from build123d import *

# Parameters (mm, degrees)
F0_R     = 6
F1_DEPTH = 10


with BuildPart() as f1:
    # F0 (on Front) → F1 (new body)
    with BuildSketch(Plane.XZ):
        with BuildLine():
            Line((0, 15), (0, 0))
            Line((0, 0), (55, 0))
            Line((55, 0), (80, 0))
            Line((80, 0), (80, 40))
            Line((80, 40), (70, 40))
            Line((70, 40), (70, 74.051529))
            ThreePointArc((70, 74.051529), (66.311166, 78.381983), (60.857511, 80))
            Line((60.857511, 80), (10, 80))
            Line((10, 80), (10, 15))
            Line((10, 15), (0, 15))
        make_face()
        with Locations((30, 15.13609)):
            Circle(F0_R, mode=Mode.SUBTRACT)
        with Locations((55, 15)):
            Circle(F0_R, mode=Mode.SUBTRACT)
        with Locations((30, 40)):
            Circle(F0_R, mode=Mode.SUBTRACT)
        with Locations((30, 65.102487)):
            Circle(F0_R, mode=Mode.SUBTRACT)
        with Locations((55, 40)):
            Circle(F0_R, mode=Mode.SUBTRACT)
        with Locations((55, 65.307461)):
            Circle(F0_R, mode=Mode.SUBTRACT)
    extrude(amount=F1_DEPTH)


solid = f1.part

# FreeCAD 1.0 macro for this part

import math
import FreeCAD as App
import Part
import Sketcher

V = App.Vector
Q = App.Units.Quantity

doc = App.newDocument("Part")
body = doc.addObject("PartDesign::Body", "Body")

# Sketch on XZ plane
sketch1 = body.newObject("Sketcher::SketchObject", "Sketch")
sketch1.AttachmentSupport = (doc.getObject("XZ_Plane"), [""])
sketch1.MapMode = "FlatFace"
sketch1.addGeometry([
    Part.LineSegment(V(0, 15, 0), V(0, 0, 0)),  # 0
    Part.LineSegment(V(0, 0, 0), V(80, 0, 0)),  # 1
    Part.LineSegment(V(80, 0, 0), V(80, 40, 0)),  # 2
    Part.LineSegment(V(80, 40, 0), V(70, 40, 0)),  # 3
    Part.LineSegment(V(70, 40, 0), V(70, 74, 0)),  # 4
    Part.ArcOfCircle(Part.Circle(V(61, 70, 0), V(0, 0, 1), 10), math.radians(24), math.radians(90)),  # 5
    Part.LineSegment(V(61, 80, 0), V(10, 80, 0)),  # 6
    Part.LineSegment(V(10, 80, 0), V(10, 15, 0)),  # 7
    Part.LineSegment(V(10, 15, 0), V(0, 15, 0)),  # 8
    Part.Circle(V(30, 15, 0), V(0, 0, 1), 6),  # 9
    Part.Circle(V(30, 40, 0), V(0, 0, 1), 6),  # 10
    Part.Circle(V(55, 15, 0), V(0, 0, 1), 6),  # 11
    Part.Circle(V(55, 40, 0), V(0, 0, 1), 6),  # 12
    Part.Circle(V(30, 65, 0), V(0, 0, 1), 6),  # 13
    Part.Circle(V(55, 65, 0), V(0, 0, 1), 6),  # 14
], False)
sketch1.addConstraint([
    Sketcher.Constraint("Coincident", 0, 2, 1, 1),
    Sketcher.Constraint("Coincident", 1, 2, 2, 1),
    Sketcher.Constraint("Coincident", 2, 2, 3, 1),
    Sketcher.Constraint("Coincident", 3, 2, 4, 1),
    Sketcher.Constraint("Coincident", 4, 2, 5, 1),
    Sketcher.Constraint("Tangent", 5, 2, 6, 1),
    Sketcher.Constraint("Coincident", 6, 2, 7, 1),
    Sketcher.Constraint("Coincident", 7, 2, 8, 1),
    Sketcher.Constraint("Coincident", 8, 2, 0, 1),
    Sketcher.Constraint("Vertical", 0),
    Sketcher.Constraint("Horizontal", 1),
    Sketcher.Constraint("Vertical", 2),
    Sketcher.Constraint("Horizontal", 3),
    Sketcher.Constraint("Vertical", 4),
    Sketcher.Constraint("Horizontal", 6),
    Sketcher.Constraint("Vertical", 7),
    Sketcher.Constraint("Horizontal", 8),
    Sketcher.Constraint("Coincident", 0, 2, -1, 1),
    Sketcher.Constraint("Equal", 9, 10),
    Sketcher.Constraint("Equal", 10, 11),
    Sketcher.Constraint("Equal", 11, 12),
    Sketcher.Constraint("Equal", 12, 13),
    Sketcher.Constraint("Equal", 13, 14),
    Sketcher.Constraint("Horizontal", 10, 3, 12, 3),
    Sketcher.Constraint("Horizontal", 12, 3, 2, 2),
    Sketcher.Constraint("Horizontal", 11, 3, 7, 2),
    Sketcher.Constraint("Vertical", 9, 3, 10, 3),
    Sketcher.Constraint("Vertical", 11, 3, 12, 3),
    Sketcher.Constraint("Vertical", 10, 3, 13, 3),
    Sketcher.Constraint("Vertical", 12, 3, 14, 3),
    Sketcher.Constraint("Equal", 3, 8),
    Sketcher.Constraint("Diameter", 9, Q("12 mm")),
    Sketcher.Constraint("Radius", 5, Q("10.000001 mm")),
    Sketcher.Constraint("DistanceX", 1, 1, 1, 2, Q("80 mm")),
    Sketcher.Constraint("DistanceX", 3, 2, 3, 1, Q("10 mm")),
    Sketcher.Constraint("DistanceY", 0, 2, 0, 1, Q("15 mm")),
    Sketcher.Constraint("DistanceY", 2, 1, 2, 2, Q("40 mm")),
    Sketcher.Constraint("DistanceY", 7, 2, 7, 1, Q("65 mm")),
    Sketcher.Constraint("DistanceX", -1, 1, 9, 3, Q("30 mm")),
    Sketcher.Constraint("DistanceX", -1, 1, 11, 3, Q("55 mm")),
    Sketcher.Constraint("DistanceX", 6, 2, 6, 1, Q("50.857511 mm")),
    Sketcher.Constraint("DistanceY", -1, 1, 9, 3, Q("15.13609 mm")),
    Sketcher.Constraint("DistanceY", -1, 1, 14, 3, Q("65.307461 mm")),
    Sketcher.Constraint("DistanceY", -1, 1, 13, 3, Q("65.102487 mm")),
])
pad1 = body.newObject("PartDesign::Pad", "Pad")
pad1.Profile = sketch1
pad1.Length = 10

doc.recompute()
